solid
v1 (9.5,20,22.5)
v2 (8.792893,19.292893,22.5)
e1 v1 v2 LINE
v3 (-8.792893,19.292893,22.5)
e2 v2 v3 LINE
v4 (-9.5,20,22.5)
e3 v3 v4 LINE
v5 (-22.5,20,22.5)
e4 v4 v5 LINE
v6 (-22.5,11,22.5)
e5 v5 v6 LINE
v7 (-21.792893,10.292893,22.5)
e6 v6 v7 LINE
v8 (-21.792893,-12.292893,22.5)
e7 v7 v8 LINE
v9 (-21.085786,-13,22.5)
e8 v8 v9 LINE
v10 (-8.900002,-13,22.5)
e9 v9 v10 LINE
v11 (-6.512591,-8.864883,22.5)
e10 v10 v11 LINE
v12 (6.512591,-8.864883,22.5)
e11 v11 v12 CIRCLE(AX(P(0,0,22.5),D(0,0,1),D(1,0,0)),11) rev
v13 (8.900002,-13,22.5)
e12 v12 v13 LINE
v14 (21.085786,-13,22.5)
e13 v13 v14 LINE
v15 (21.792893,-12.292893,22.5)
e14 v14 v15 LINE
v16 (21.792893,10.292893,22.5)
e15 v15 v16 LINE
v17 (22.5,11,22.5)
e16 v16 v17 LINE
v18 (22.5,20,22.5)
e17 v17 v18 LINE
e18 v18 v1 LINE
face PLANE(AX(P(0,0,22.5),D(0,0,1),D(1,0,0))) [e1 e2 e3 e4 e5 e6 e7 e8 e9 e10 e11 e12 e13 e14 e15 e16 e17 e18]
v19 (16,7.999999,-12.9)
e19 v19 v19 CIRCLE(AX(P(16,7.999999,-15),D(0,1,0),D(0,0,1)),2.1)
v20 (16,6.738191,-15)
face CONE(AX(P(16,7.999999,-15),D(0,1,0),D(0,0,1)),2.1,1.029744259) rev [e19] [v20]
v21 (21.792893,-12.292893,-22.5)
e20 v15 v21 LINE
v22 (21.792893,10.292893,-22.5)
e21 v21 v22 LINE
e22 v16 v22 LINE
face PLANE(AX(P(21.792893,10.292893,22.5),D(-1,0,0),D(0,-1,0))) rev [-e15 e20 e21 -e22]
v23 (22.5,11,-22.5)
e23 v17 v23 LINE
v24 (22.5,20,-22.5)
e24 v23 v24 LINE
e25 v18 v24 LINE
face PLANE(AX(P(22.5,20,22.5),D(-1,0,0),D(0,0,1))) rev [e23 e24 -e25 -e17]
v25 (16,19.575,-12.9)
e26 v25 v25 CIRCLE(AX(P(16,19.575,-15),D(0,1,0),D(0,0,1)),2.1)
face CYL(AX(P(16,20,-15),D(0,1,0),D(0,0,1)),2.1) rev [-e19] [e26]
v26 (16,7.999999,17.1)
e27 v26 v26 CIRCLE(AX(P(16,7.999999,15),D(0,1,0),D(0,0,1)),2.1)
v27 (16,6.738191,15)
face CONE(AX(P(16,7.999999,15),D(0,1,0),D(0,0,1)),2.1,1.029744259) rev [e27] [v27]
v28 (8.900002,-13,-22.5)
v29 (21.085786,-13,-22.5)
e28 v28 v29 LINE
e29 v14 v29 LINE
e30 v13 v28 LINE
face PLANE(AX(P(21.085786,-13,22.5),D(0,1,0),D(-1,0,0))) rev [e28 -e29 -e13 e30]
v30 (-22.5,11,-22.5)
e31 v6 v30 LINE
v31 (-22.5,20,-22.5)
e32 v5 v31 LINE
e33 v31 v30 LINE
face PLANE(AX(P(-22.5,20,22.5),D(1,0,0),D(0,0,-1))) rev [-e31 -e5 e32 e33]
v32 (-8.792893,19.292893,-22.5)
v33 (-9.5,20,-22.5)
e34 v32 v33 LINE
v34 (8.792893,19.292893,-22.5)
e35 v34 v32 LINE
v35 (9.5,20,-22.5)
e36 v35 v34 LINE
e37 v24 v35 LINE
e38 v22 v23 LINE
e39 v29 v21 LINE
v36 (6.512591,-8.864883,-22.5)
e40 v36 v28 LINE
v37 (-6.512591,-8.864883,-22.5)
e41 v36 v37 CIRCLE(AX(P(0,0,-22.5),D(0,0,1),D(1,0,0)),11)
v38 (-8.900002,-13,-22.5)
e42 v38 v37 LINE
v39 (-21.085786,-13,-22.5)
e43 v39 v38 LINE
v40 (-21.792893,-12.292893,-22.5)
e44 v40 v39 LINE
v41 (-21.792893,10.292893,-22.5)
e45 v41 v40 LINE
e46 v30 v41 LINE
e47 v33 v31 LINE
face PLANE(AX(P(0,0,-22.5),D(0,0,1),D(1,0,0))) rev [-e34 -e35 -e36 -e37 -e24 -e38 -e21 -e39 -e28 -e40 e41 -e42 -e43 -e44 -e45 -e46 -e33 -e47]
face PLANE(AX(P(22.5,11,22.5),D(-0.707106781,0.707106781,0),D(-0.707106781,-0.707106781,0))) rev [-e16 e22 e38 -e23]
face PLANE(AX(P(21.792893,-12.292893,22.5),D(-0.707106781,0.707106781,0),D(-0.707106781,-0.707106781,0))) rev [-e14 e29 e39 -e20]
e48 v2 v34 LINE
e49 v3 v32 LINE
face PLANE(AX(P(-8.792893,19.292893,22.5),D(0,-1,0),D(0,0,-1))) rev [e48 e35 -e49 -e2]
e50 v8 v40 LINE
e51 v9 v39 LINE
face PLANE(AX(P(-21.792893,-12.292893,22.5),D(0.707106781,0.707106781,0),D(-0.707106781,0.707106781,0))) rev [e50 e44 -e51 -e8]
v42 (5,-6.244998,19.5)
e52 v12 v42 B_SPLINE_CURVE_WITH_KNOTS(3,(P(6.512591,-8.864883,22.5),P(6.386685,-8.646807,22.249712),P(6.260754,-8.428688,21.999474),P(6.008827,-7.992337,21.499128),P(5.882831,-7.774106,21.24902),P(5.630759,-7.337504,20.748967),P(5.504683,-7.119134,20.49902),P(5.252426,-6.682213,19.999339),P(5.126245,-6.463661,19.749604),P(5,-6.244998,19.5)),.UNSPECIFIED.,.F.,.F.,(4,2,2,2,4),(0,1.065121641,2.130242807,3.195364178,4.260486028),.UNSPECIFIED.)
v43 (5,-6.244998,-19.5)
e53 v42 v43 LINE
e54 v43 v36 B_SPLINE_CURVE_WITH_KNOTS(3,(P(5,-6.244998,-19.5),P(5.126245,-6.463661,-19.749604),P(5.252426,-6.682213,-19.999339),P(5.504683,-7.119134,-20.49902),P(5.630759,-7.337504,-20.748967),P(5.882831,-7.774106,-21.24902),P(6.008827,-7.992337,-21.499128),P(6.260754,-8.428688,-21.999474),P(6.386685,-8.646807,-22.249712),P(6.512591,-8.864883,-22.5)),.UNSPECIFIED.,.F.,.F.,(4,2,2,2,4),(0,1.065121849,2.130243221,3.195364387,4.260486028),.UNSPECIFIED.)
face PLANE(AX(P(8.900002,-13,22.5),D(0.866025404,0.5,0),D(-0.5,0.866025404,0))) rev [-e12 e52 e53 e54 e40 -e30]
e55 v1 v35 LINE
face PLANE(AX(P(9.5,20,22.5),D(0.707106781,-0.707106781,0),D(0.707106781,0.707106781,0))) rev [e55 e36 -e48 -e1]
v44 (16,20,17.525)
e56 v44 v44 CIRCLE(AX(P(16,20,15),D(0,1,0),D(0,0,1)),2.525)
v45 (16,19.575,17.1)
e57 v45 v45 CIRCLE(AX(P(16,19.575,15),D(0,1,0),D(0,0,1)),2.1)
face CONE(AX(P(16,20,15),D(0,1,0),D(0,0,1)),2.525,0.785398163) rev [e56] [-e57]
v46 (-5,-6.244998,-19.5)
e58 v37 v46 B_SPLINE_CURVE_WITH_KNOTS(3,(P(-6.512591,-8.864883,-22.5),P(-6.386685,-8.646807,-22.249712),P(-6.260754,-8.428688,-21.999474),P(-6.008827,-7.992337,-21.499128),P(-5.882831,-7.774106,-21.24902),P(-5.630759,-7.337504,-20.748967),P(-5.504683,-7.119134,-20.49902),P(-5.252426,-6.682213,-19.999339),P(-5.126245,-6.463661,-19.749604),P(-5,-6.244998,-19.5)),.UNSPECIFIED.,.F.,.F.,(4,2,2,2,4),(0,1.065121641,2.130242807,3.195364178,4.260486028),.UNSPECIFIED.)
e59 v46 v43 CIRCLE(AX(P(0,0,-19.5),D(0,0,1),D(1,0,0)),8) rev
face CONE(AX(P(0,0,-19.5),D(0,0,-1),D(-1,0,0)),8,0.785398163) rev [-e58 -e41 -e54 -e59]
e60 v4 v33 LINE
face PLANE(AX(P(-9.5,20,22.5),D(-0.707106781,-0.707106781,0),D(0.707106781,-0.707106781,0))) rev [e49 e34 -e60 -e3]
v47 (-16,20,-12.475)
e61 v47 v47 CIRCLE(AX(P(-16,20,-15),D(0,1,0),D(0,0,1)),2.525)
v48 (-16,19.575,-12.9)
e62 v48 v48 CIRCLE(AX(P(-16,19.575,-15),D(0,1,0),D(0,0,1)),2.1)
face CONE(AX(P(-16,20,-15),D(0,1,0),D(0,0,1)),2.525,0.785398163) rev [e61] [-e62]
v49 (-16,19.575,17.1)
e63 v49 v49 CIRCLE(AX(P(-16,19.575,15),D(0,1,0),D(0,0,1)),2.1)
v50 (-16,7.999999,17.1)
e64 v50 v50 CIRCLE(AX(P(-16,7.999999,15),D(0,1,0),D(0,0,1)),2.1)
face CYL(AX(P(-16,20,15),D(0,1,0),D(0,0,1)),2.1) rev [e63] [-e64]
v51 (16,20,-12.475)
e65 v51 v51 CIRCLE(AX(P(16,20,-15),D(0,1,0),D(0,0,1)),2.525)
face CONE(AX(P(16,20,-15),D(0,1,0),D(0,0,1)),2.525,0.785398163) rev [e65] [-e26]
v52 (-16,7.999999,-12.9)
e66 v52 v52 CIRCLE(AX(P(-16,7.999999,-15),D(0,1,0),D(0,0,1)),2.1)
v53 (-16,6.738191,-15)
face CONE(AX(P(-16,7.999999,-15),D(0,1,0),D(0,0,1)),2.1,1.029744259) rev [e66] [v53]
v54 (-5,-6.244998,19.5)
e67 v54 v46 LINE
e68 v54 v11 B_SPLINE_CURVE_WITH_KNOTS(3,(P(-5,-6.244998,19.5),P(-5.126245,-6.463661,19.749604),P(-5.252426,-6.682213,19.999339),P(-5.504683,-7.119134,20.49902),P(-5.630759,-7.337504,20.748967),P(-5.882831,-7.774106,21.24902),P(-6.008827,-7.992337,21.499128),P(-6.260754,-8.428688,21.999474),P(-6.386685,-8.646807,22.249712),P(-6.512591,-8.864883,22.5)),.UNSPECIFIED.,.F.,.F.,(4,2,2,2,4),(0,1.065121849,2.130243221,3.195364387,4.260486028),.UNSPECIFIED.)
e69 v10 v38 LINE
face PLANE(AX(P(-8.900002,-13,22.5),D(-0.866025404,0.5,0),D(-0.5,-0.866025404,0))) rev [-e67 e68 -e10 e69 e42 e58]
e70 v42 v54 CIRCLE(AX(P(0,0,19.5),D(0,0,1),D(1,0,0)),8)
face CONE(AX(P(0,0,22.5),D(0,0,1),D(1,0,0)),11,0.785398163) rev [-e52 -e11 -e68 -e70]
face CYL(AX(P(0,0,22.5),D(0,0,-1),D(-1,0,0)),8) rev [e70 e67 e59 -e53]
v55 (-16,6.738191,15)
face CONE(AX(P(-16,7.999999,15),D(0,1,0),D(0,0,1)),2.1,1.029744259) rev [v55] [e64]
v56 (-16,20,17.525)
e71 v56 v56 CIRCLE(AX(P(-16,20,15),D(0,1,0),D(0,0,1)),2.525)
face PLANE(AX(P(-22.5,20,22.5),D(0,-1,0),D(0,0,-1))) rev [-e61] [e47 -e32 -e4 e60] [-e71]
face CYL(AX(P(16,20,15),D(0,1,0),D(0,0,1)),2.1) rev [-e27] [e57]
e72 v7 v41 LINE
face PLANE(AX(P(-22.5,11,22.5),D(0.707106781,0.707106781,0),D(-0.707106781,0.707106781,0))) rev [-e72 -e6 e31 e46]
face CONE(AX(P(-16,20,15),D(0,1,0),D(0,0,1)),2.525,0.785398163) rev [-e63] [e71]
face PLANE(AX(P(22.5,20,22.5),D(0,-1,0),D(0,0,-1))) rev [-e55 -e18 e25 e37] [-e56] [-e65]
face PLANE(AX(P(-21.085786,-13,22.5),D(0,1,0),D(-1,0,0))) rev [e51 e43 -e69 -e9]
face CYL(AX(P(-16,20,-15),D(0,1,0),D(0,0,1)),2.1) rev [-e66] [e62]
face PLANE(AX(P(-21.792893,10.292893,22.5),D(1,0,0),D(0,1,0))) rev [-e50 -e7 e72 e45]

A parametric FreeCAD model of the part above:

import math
import FreeCAD as App
import Part
import Sketcher

V = App.Vector
Q = App.Units.Quantity


def edges_at(feature, points):
    """Names of the edges that pass closest to the given points."""
    edges = feature.Shape.Edges
    near = lambda p: min(range(len(edges)), key=lambda i: edges[i].distToShape(Part.Vertex(*p))[0])
    return sorted({f"Edge{near(p) + 1}" for p in points})

doc = App.newDocument("Part")
body = doc.addObject("PartDesign::Body", "Body")

sketch1 = body.newObject("Sketcher::SketchObject", "Sketch")
sketch1.AttachmentSupport = (doc.getObject("XY_Plane"), [""])
sketch1.MapMode = "FlatFace"
sketch1.addGeometry([
    Part.LineSegment(V(-22.5, 20, 0), V(-22.5, 11, 0)),
    Part.LineSegment(V(-22.5, 11, 0), V(-21.8, 10.3, 0)),
    Part.LineSegment(V(-21.8, 10.3, 0), V(-21.8, -12.3, 0)),
    Part.LineSegment(V(-21.8, -12.3, 0), V(-21.1, -13, 0)),
    Part.LineSegment(V(-21.1, -13, 0), V(-8.9, -13, 0)),
    Part.LineSegment(V(-8.9, -13, 0), V(-5, -6.2, 0)),
    Part.ArcOfCircle(Part.Circle(V(0, 0, 0), V(0, 0, 1), 8), math.radians(-51), math.radians(231)),
    Part.LineSegment(V(5, -6.2, 0), V(8.9, -13, 0)),
    Part.LineSegment(V(8.9, -13, 0), V(21.1, -13, 0)),
    Part.LineSegment(V(21.1, -13, 0), V(21.8, -12.3, 0)),
    Part.LineSegment(V(21.8, -12.3, 0), V(21.8, 10.3, 0)),
    Part.LineSegment(V(21.8, 10.3, 0), V(22.5, 11, 0)),
    Part.LineSegment(V(22.5, 11, 0), V(22.5, 20, 0)),
    Part.LineSegment(V(22.5, 20, 0), V(9.5, 20, 0)),
    Part.LineSegment(V(9.5, 20, 0), V(8.8, 19.3, 0)),
    Part.LineSegment(V(8.8, 19.3, 0), V(-8.8, 19.3, 0)),
    Part.LineSegment(V(-8.8, 19.3, 0), V(-9.5, 20, 0)),
    Part.LineSegment(V(-9.5, 20, 0), V(-22.5, 20, 0)),
], False)
sketch1.addConstraint([
    Sketcher.Constraint("Coincident", 0, 2, 1, 1),
    Sketcher.Constraint("Coincident", 1, 2, 2, 1),
    Sketcher.Constraint("Coincident", 2, 2, 3, 1),
    Sketcher.Constraint("Coincident", 3, 2, 4, 1),
    Sketcher.Constraint("Coincident", 4, 2, 5, 1),
    Sketcher.Constraint("Coincident", 5, 2, 6, 2),
    Sketcher.Constraint("Coincident", 6, 1, 7, 1),
    Sketcher.Constraint("Coincident", 7, 2, 8, 1),
    Sketcher.Constraint("Coincident", 8, 2, 9, 1),
    Sketcher.Constraint("Coincident", 9, 2, 10, 1),
    Sketcher.Constraint("Coincident", 10, 2, 11, 1),
    Sketcher.Constraint("Coincident", 11, 2, 12, 1),
    Sketcher.Constraint("Coincident", 12, 2, 13, 1),
    Sketcher.Constraint("Coincident", 13, 2, 14, 1),
    Sketcher.Constraint("Coincident", 14, 2, 15, 1),
    Sketcher.Constraint("Coincident", 15, 2, 16, 1),
    Sketcher.Constraint("Coincident", 16, 2, 17, 1),
    Sketcher.Constraint("Coincident", 17, 2, 0, 1),
    Sketcher.Constraint("Vertical", 0),
    Sketcher.Constraint("Vertical", 2),
    Sketcher.Constraint("Horizontal", 4),
    Sketcher.Constraint("Horizontal", 8),
    Sketcher.Constraint("Vertical", 10),
    Sketcher.Constraint("Vertical", 12),
    Sketcher.Constraint("Horizontal", 13),
    Sketcher.Constraint("Horizontal", 15),
    Sketcher.Constraint("Horizontal", 17),
    Sketcher.Constraint("Coincident", 6, 3, -1, 1),
    Sketcher.Constraint("Symmetric", 4, 2, 7, 2, -2),
    Sketcher.Constraint("Symmetric", 2, 2, 9, 2, -2),
    Sketcher.Constraint("Symmetric", 0, 2, 11, 2, -2),
    Sketcher.Constraint("Symmetric", 13, 2, 16, 2, -2),
    Sketcher.Constraint("Parallel", 1, 3),
    Sketcher.Constraint("Perpendicular", 3, 9),
    Sketcher.Constraint("Parallel", 9, 11),
    Sketcher.Constraint("Parallel", 11, 14),
    Sketcher.Constraint("Perpendicular", 14, 16),
    Sketcher.Constraint("Horizontal", 5, 2, 6, 1),
    Sketcher.Constraint("Horizontal", 1, 2, 10, 2),
    Sketcher.Constraint("Equal", 1, 3),
    Sketcher.Constraint("Equal", 11, 14),
    Sketcher.Constraint("Radius", 6, Q("8 mm")),
    Sketcher.Constraint("DistanceX", 13, 2, 13, 1, Q("13 mm")),
    Sketcher.Constraint("DistanceY", 0, 2, 0, 1, Q("9 mm")),
    Sketcher.Constraint("Angle", 5, Q("60 deg")),
    Sketcher.Constraint("Distance", 1, Q("1 mm")),
    Sketcher.Constraint("DistanceY", -1, 1, 0, 2, Q("11 mm")),
    Sketcher.Constraint("DistanceY", 3, 2, -1, 1, Q("13 mm")),
    Sketcher.Constraint("DistanceX", 5, 2, -1, 1, Q("5 mm")),
    Sketcher.Constraint("DistanceX", 16, 2, 13, 2, Q("19 mm")),
])
pad1 = body.newObject("PartDesign::Pad", "Pad")
pad1.Profile = sketch1
pad1.Length = 45
pad1.Midplane = True

sketch2 = body.newObject("Sketcher::SketchObject", "Sketch001")
sketch2.AttachmentSupport = (doc.getObject("XZ_Plane"), [""])
sketch2.MapMode = "FlatFace"
sketch2.AttachmentOffset = App.Placement(V(0, 0, -20), App.Rotation())
sketch2.addGeometry([
    Part.Circle(V(16, 15, 0), V(0, 0, 1), 2.1),
    Part.Circle(V(16, -15, 0), V(0, 0, 1), 2.1),
    Part.Circle(V(-16, -15, 0), V(0, 0, 1), 2.1),
    Part.Circle(V(-16, 15, 0), V(0, 0, 1), 2.1),
], False)
sketch2.addConstraint([
    Sketcher.Constraint("Equal", 0, 1),
    Sketcher.Constraint("Equal", 1, 2),
    Sketcher.Constraint("Equal", 2, 3),
    Sketcher.Constraint("Symmetric", 0, 3, 2, 3, -1, 1),
    Sketcher.Constraint("Symmetric", 1, 3, 3, 3, -1, 1),
    Sketcher.Constraint("Symmetric", 1, 3, 2, 3, -2),
    Sketcher.Constraint("Diameter", 0, Q("4.2 mm")),
    Sketcher.Constraint("DistanceX", -1, 1, 0, 3, Q("16 mm")),
    Sketcher.Constraint("DistanceY", -1, 1, 0, 3, Q("15 mm")),
])
doc.recompute()
hole = body.newObject("PartDesign::Hole", "Hole")
hole.Profile = sketch2
hole.ThreadType = "None"
hole.Diameter = 4.2
hole.DepthType = "Dimension"
hole.Depth = 12.000001
hole.DrillPoint = "Angled"
hole.DrillPointAngle = 118
hole.HoleCutType = "Countersink"
hole.HoleCutDiameter = 5.05
hole.HoleCutCountersinkAngle = 90
hole.Reversed = True
doc.recompute()

chamfer = body.newObject("PartDesign::Chamfer", "Chamfer")
chamfer.Base = (hole, edges_at(hole, [(0, 8, -22.5), (0, 8, 22.5)]))
chamfer.Size = 3

doc.recompute()
